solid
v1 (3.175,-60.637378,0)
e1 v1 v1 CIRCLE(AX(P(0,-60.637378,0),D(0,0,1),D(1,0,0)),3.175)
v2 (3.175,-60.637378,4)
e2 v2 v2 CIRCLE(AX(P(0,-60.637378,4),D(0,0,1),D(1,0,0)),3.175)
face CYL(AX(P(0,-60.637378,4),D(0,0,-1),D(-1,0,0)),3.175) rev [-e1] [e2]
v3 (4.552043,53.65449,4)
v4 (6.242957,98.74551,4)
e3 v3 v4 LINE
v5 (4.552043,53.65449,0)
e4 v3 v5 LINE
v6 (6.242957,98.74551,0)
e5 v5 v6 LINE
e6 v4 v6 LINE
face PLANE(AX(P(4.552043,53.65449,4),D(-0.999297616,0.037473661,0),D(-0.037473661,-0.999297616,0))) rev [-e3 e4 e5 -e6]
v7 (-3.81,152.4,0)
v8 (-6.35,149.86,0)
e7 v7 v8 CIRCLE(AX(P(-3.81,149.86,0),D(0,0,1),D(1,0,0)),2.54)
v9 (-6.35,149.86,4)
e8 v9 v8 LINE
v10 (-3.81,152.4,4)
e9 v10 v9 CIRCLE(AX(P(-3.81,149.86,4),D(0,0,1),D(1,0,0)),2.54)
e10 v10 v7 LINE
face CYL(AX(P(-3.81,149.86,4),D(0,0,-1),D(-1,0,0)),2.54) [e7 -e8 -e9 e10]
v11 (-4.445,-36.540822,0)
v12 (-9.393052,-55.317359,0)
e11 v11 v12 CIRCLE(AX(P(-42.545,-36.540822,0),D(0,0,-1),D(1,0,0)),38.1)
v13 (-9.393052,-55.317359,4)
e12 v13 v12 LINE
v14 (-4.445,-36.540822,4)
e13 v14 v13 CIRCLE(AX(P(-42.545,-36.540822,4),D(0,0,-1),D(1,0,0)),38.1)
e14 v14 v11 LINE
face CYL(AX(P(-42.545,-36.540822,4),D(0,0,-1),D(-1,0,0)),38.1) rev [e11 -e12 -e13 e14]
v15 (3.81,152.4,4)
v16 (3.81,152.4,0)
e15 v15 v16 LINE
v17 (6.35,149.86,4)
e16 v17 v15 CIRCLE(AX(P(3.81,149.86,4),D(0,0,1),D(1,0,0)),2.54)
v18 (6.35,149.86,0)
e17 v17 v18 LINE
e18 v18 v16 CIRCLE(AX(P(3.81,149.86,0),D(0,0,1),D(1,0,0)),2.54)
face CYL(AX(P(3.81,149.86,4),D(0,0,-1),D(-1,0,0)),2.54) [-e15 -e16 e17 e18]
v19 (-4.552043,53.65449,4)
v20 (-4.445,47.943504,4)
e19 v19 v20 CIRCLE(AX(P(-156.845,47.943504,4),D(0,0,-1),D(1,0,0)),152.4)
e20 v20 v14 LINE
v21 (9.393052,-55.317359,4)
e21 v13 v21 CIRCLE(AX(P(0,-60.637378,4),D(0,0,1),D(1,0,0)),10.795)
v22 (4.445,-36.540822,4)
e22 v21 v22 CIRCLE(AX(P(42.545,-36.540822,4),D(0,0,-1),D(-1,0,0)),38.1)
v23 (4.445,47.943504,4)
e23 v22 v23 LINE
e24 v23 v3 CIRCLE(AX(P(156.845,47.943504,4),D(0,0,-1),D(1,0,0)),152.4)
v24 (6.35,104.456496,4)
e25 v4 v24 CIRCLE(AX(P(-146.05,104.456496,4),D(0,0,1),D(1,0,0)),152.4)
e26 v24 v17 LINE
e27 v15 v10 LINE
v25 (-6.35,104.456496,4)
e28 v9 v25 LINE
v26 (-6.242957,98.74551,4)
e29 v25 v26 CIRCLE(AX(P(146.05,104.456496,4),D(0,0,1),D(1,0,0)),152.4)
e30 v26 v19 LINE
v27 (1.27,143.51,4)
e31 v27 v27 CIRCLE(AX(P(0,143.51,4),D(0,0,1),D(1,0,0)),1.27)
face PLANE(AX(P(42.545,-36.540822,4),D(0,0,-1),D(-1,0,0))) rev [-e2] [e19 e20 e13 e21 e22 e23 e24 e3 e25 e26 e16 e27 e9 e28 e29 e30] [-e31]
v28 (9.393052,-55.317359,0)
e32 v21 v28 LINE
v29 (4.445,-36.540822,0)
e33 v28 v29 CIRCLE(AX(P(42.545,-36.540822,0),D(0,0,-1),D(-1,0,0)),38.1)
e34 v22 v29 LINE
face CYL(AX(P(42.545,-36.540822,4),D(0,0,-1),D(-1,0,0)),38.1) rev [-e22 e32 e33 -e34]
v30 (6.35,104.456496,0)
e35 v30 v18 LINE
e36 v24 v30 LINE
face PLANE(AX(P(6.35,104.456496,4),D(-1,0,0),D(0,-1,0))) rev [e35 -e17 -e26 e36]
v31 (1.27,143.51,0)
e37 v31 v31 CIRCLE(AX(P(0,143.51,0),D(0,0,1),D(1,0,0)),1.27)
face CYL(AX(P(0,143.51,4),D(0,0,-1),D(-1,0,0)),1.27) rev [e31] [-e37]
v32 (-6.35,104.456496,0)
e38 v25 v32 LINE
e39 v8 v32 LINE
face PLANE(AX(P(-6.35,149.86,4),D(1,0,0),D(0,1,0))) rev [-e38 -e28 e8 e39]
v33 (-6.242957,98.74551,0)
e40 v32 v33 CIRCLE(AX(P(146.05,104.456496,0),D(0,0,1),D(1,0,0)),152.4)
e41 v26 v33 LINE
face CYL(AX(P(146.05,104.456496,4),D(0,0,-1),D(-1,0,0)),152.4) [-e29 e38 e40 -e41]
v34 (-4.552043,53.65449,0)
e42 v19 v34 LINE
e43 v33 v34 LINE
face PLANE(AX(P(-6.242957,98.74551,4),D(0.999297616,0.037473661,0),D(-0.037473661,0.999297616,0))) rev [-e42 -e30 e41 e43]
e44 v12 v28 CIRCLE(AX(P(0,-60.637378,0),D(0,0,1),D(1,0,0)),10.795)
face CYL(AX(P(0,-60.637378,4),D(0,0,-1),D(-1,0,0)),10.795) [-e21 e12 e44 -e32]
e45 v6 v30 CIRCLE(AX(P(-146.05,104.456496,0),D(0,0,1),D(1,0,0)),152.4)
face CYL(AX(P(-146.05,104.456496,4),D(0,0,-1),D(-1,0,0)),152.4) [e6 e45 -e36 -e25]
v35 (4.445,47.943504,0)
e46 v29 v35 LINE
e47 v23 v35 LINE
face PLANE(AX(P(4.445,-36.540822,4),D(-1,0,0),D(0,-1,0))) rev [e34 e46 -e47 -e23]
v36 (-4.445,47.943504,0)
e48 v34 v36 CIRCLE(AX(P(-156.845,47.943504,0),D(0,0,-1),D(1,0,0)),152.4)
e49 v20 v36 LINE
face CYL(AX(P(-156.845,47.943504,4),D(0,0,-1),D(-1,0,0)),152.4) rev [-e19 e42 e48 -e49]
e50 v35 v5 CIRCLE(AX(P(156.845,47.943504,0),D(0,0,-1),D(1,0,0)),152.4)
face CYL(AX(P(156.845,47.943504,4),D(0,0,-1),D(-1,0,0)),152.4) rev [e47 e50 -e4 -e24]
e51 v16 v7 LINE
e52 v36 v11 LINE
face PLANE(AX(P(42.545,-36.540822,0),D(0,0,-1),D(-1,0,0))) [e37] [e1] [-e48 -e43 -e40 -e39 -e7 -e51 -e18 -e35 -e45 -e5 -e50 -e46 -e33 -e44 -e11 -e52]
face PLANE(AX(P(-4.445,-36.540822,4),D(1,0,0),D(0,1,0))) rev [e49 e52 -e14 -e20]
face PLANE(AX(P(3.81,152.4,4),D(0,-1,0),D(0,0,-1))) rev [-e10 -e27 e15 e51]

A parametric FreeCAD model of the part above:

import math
import FreeCAD as App
import Part
import Sketcher
Q = App.Units.Quantity

doc = App.newDocument("Part")
params = doc.addObject("Spreadsheet::Sheet", "Params")
for row, (alias, value) in enumerate([
    ("sketch1_radius", "5.9999999 in"),
    ("sketch1_diameter", "0.1 in"),
    ("sketch1_radius2", "0.1 in"),
    ("sketch1_radius3", "1.5 in"),
    ("sketch1_diameter2", "0.25 in"),
    ("pad1_length", "4 mm"),
], start=1):
    params.set(f"A{row}", alias)
    params.set(f"B{row}", "=" + value)
    params.setAlias(f"B{row}", alias)

body = doc.addObject("PartDesign::Body", "Body")

# Sketch on XY plane
sketch1 = body.newObject("Sketcher::SketchObject", "Sketch")
sketch1.AttachmentSupport = (doc.getObject("XY_Plane"), [""])
sketch1.MapMode = "FlatFace"
sketch1.addGeometry([
    Part.LineSegment(App.Vector(4.552043, 53.65449, 0), App.Vector(6.242957, 98.74551, 0)),  # 0
    Part.ArcOfCircle(Part.Circle(App.Vector(-146.049997, 104.456496, 0), App.Vector(0, 0, 1), 152.399997), math.radians(-2.147585), math.radians(0)),  # 1
    Part.LineSegment(App.Vector(6.35, 104.456496, 0), App.Vector(6.35, 149.86, 0)),  # 2
    Part.ArcOfCircle(Part.Circle(App.Vector(3.81, 149.86, 0), App.Vector(0, 0, 1), 2.54), math.radians(0), math.radians(90)),  # 3
    Part.LineSegment(App.Vector(3.81, 152.4, 0), App.Vector(-3.81, 152.4, 0)),  # 4
    Part.ArcOfCircle(Part.Circle(App.Vector(-3.81, 149.86, 0), App.Vector(0, 0, 1), 2.54), math.radians(90), math.radians(180)),  # 5
    Part.LineSegment(App.Vector(-6.35, 149.86, 0), App.Vector(-6.35, 104.456496, 0)),  # 6
    Part.ArcOfCircle(Part.Circle(App.Vector(146.049997, 104.456496, 0), App.Vector(0, 0, 1), 152.399997), math.radians(180), math.radians(182.147585)),  # 7
    Part.LineSegment(App.Vector(-6.242957, 98.74551, 0), App.Vector(-4.552043, 53.65449, 0)),  # 8
    Part.ArcOfCircle(Part.Circle(App.Vector(-156.844997, 47.943504, 0), App.Vector(0, 0, 1), 152.399997), math.radians(0), math.radians(2.147585)),  # 9
    Part.LineSegment(App.Vector(-4.445, 47.943504, 0), App.Vector(-4.445, -36.540822, 0)),  # 10
    Part.ArcOfCircle(Part.Circle(App.Vector(-42.545, -36.540822, 0), App.Vector(0, 0, 1), 38.1), math.radians(-29.526265), math.radians(0)),  # 11
    Part.ArcOfCircle(Part.Circle(App.Vector(0, -60.637378, 0), App.Vector(0, 0, 1), 10.795), math.radians(150.473735), math.radians(389.526265)),  # 12
    Part.ArcOfCircle(Part.Circle(App.Vector(42.545, -36.540822, 0), App.Vector(0, 0, 1), 38.1), math.radians(-180), math.radians(-150.473735)),  # 13
    Part.LineSegment(App.Vector(4.445, -36.540822, 0), App.Vector(4.445, 47.943504, 0)),  # 14
    Part.ArcOfCircle(Part.Circle(App.Vector(156.844997, 47.943504, 0), App.Vector(0, 0, 1), 152.399997), math.radians(177.852415), math.radians(180)),  # 15
    Part.Circle(App.Vector(0, -60.637378, 0), App.Vector(0, 0, 1), 3.175),  # 16
    Part.Circle(App.Vector(0, 143.51, 0), App.Vector(0, 0, 1), 1.27),  # 17
], False)
sketch1.addConstraint([
    Sketcher.Constraint("Tangent", 0, 2, 1, 1),
    Sketcher.Constraint("Tangent", 1, 2, 2, 1),
    Sketcher.Constraint("Tangent", 2, 2, 3, 1),
    Sketcher.Constraint("Tangent", 3, 2, 4, 1),
    Sketcher.Constraint("Tangent", 4, 2, 5, 1),
    Sketcher.Constraint("Tangent", 5, 2, 6, 1),
    Sketcher.Constraint("Tangent", 6, 2, 7, 1),
    Sketcher.Constraint("Tangent", 7, 2, 8, 1),
    Sketcher.Constraint("Tangent", 8, 2, 9, 2),
    Sketcher.Constraint("Tangent", 9, 1, 10, 1),
    Sketcher.Constraint("Tangent", 10, 2, 11, 2),
    Sketcher.Constraint("Tangent", 11, 1, 12, 1),
    Sketcher.Constraint("Tangent", 12, 2, 13, 2),
    Sketcher.Constraint("Tangent", 13, 1, 14, 1),
    Sketcher.Constraint("Tangent", 14, 2, 15, 2),
    Sketcher.Constraint("Tangent", 15, 1, 0, 1),
    Sketcher.Constraint("Vertical", 2),
    Sketcher.Constraint("Horizontal", 4),
    Sketcher.Constraint("Vertical", 6),
    Sketcher.Constraint("Vertical", 10),
    Sketcher.Constraint("Vertical", 14),
    Sketcher.Constraint("Coincident", 16, 3, 12, 3),
    Sketcher.Constraint("Equal", 3, 5),
    Sketcher.Constraint("Equal", 1, 7),
    Sketcher.Constraint("Equal", 7, 9),
    Sketcher.Constraint("Equal", 11, 13),
    Sketcher.Constraint("Equal", 9, 15),
    Sketcher.Constraint("Symmetric", 1, 3, 7, 3, -2),
    Sketcher.Constraint("Symmetric", 11, 3, 13, 3, -2),
    Sketcher.Constraint("PointOnObject", 17, 3, -2),
    Sketcher.Constraint("Horizontal", 9, 3, 15, 3),
    Sketcher.Constraint("Radius", 1, Q("5.9999999 in")),
    Sketcher.Constraint("Diameter", 17, Q("0.1 in")),
    Sketcher.Constraint("Radius", 3, Q("0.1 in")),
    Sketcher.Constraint("Radius", 11, Q("1.5 in")),
    Sketcher.Constraint("Diameter", 16, Q("0.25 in")),
    Sketcher.Constraint("DistanceX", 4, 2, 4, 1, Q("0.3 in")),
    Sketcher.Constraint("DistanceY", -1, 1, 3, 2, Q("6 in")),
    Sketcher.Constraint("Radius", 12, Q("0.425 in")),
    Sketcher.Constraint("DistanceY", -1, 1, 17, 3, Q("5.65 in")),
    Sketcher.Constraint("DistanceX", 11, 3, 13, 3, Q("3.35 in")),
    Sketcher.Constraint("DistanceY", 2, 1, 2, 2, 45.403504),
    Sketcher.Constraint("DistanceY", 10, 2, 10, 1, 84.484326),
    Sketcher.Constraint("DistanceY", 11, 3, -1, 1, 36.540822),
])
sketch1.setExpression("Constraints[31]", "Params.sketch1_radius")
sketch1.setExpression("Constraints[32]", "Params.sketch1_diameter")
sketch1.setExpression("Constraints[33]", "Params.sketch1_radius2")
sketch1.setExpression("Constraints[34]", "Params.sketch1_radius3")
sketch1.setExpression("Constraints[35]", "Params.sketch1_diameter2")
pad1 = body.newObject("PartDesign::Pad", "Pad")
pad1.Profile = sketch1
pad1.setExpression("Length", "Params.pad1_length")

doc.recompute()
